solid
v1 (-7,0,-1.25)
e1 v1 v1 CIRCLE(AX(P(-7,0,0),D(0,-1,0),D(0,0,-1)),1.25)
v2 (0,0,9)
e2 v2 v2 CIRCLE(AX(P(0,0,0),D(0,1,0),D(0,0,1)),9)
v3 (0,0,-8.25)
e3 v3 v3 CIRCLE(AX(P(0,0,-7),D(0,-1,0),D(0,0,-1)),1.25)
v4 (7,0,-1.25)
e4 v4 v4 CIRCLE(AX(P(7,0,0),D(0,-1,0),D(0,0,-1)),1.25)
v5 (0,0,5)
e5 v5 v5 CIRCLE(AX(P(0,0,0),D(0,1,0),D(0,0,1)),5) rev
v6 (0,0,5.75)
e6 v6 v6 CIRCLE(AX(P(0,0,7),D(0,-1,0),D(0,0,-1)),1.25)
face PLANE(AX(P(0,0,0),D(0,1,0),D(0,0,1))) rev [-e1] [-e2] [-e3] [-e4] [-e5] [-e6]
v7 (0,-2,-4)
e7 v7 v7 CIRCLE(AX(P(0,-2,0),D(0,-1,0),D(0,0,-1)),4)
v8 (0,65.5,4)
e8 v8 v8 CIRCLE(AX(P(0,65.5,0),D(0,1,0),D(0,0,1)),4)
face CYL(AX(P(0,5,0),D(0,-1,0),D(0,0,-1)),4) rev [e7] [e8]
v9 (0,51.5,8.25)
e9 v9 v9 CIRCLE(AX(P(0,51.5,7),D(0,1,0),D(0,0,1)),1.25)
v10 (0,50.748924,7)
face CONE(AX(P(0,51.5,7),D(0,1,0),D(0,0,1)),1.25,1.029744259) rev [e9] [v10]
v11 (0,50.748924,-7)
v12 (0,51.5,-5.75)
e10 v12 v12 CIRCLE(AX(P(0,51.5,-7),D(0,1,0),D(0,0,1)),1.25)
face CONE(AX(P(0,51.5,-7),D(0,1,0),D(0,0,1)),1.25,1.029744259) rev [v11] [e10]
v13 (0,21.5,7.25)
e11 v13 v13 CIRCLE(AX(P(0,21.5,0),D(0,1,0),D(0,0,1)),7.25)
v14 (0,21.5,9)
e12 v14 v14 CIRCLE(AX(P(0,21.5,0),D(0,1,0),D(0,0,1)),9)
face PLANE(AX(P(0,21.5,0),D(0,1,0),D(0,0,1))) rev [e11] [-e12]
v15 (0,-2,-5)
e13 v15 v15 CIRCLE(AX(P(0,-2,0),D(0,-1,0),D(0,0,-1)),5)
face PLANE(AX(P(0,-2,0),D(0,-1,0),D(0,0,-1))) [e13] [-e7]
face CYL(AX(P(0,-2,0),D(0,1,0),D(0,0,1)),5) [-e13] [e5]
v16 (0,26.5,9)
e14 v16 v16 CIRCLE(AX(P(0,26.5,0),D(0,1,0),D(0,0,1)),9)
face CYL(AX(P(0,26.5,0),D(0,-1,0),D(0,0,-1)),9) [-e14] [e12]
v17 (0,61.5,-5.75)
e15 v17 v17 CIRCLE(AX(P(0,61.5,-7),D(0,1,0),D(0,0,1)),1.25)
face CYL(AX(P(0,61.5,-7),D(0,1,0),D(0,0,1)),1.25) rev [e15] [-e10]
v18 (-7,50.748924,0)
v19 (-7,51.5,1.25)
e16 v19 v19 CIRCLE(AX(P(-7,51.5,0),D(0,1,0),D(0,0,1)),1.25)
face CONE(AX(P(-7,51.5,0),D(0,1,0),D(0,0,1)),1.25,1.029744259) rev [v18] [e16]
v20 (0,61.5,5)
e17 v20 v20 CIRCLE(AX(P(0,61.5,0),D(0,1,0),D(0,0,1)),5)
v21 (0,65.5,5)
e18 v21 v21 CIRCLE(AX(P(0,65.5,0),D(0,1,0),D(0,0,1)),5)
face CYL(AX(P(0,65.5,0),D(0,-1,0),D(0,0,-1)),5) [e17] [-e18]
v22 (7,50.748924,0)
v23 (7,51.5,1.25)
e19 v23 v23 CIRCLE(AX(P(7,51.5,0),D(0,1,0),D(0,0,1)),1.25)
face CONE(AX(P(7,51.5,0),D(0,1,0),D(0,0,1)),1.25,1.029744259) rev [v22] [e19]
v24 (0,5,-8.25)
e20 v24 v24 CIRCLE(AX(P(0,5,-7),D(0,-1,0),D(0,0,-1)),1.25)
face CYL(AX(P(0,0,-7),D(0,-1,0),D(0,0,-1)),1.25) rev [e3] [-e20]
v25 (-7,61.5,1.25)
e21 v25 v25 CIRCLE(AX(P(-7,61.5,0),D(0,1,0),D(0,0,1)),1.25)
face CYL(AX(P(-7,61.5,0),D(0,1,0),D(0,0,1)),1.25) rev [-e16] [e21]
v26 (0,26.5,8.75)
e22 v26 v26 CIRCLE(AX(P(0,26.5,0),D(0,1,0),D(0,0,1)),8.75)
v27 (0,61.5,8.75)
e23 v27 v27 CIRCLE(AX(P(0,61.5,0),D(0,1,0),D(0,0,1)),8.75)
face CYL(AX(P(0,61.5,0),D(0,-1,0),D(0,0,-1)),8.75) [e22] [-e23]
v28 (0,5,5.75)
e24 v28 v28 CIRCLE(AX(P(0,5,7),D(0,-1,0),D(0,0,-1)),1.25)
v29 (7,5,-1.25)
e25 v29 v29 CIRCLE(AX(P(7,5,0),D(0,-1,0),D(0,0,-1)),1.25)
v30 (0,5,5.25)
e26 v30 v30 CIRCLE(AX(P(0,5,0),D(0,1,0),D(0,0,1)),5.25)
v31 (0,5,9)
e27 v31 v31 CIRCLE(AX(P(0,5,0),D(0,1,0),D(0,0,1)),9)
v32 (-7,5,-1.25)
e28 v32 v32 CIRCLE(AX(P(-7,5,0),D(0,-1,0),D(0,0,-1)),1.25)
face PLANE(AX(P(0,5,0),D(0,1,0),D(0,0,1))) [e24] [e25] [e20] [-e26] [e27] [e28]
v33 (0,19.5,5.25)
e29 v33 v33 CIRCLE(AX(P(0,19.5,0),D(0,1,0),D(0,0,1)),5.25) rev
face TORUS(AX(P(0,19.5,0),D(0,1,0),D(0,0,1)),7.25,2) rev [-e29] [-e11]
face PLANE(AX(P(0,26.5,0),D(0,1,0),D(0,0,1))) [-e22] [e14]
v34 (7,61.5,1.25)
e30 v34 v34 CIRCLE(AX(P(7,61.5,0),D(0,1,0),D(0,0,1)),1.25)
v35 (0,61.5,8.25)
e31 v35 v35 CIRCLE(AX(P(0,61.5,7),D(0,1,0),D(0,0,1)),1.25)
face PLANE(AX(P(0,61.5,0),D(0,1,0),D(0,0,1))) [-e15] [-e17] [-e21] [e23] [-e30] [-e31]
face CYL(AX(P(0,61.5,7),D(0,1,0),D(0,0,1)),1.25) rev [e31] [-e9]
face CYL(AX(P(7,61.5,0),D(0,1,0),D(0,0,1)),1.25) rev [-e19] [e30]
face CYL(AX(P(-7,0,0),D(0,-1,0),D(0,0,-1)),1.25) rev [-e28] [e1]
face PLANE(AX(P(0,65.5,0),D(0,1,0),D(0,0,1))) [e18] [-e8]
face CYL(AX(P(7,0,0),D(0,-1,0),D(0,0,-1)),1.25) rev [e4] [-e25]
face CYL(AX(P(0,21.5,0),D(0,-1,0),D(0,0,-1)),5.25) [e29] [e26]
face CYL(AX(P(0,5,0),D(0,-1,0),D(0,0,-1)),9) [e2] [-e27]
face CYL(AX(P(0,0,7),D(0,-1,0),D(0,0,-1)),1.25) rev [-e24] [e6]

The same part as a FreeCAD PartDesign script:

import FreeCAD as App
import Part
import Sketcher

V = App.Vector


def edges_at(feature, points):
    """Names of the edges that pass closest to the given points."""
    edges = feature.Shape.Edges
    near = lambda p: min(range(len(edges)), key=lambda i: edges[i].distToShape(Part.Vertex(*p))[0])
    return sorted({f"Edge{near(p) + 1}" for p in points})

doc = App.newDocument("Part")
body = doc.addObject("PartDesign::Body", "Body")

sketch1 = body.newObject("Sketcher::SketchObject", "Sketch")
sketch1.AttachmentSupport = (doc.getObject("XZ_Plane"), [""])
sketch1.MapMode = "FlatFace"
sketch1.addGeometry([
    Part.Circle(V(0, 0, 0), V(0, 0, 1), 9),
    Part.Circle(V(0, 0, 0), V(0, 0, 1), 4),
], False)
sketch1.addConstraint([
    Sketcher.Constraint("Coincident", 0, 3, -1, 1),
    Sketcher.Constraint("Coincident", 1, 3, -1, 1),
    Sketcher.Constraint("Diameter", 0, 18.0),
    Sketcher.Constraint("Diameter", 1, 8.0),
])
pad1 = body.newObject("PartDesign::Pad", "Pad")
pad1.Profile = sketch1
pad1.Length = 5
pad1.Reversed = True

sketch2 = body.newObject("Sketcher::SketchObject", "Sketch001")
sketch2.AttachmentSupport = (doc.getObject("XZ_Plane"), [""])
sketch2.MapMode = "FlatFace"
sketch2.addGeometry([
    Part.Circle(V(-7, 0, 0), V(0, 0, 1), 1.2),
    Part.Circle(V(0, 7, 0), V(0, 0, 1), 1.2),
    Part.Circle(V(7, 0, 0), V(0, 0, 1), 1.2),
    Part.Circle(V(0, -7, 0), V(0, 0, 1), 1.2),
], False)
sketch2.addConstraint([
    Sketcher.Constraint("Equal", 0, 1),
    Sketcher.Constraint("Equal", 1, 2),
    Sketcher.Constraint("Equal", 2, 3),
    Sketcher.Constraint("Symmetric", 0, 3, 2, 3, -1, 1),
    Sketcher.Constraint("Symmetric", 1, 3, 3, 3, -1, 1),
    Sketcher.Constraint("PointOnObject", 0, 3, -1),
    Sketcher.Constraint("PointOnObject", 1, 3, -2),
    Sketcher.Constraint("Diameter", 0, 2.5),
    Sketcher.Constraint("DistanceX", 0, 3, -1, 1, 7.0),
    Sketcher.Constraint("DistanceY", -1, 1, 1, 3, 7.0),
])
doc.recompute()
hole = body.newObject("PartDesign::Hole", "Hole")
hole.Profile = sketch2
hole.ThreadType = "None"
hole.Diameter = 2.5
hole.DepthType = "ThroughAll"

sketch3 = body.newObject("Sketcher::SketchObject", "Sketch002")
sketch3.AttachmentSupport = (doc.getObject("XZ_Plane"), [""])
sketch3.MapMode = "FlatFace"
sketch3.AttachmentOffset = App.Placement(V(0, 0, -5), App.Rotation())
sketch3.addGeometry(Part.Circle(V(0, 0, 0), V(0, 0, 1), 5), False)
sketch3.addConstraint([
    Sketcher.Constraint("Coincident", 0, 3, -1, 1),
    Sketcher.Constraint("Diameter", 0, 10.5),
])
pad2 = body.newObject("PartDesign::Pad", "Pad001")
pad2.Profile = sketch3
pad2.Length = 16.5
pad2.Reversed = True

sketch4 = body.newObject("Sketcher::SketchObject", "Sketch003")
sketch4.AttachmentSupport = (doc.getObject("XZ_Plane"), [""])
sketch4.MapMode = "FlatFace"
sketch4.AttachmentOffset = App.Placement(V(0, 0, -21.5), App.Rotation())
sketch4.addGeometry(Part.Circle(V(0, 0, 0), V(0, 0, 1), 9), False)
sketch4.addConstraint([
    Sketcher.Constraint("Coincident", 0, 3, -1, 1),
    Sketcher.Constraint("Diameter", 0, 18.0),
])
pad3 = body.newObject("PartDesign::Pad", "Pad002")
pad3.Profile = sketch4
pad3.Length = 5
pad3.Reversed = True

sketch5 = body.newObject("Sketcher::SketchObject", "Sketch004")
sketch5.AttachmentSupport = (doc.getObject("XZ_Plane"), [""])
sketch5.MapMode = "FlatFace"
sketch5.AttachmentOffset = App.Placement(V(0, 0, -26.5), App.Rotation())
sketch5.addGeometry(Part.Circle(V(0, 0, 0), V(0, 0, 1), 9), False)
sketch5.addConstraint([
    Sketcher.Constraint("Coincident", 0, 3, -1, 1),
    Sketcher.Constraint("Diameter", 0, 17.5),
])
pad4 = body.newObject("PartDesign::Pad", "Pad003")
pad4.Profile = sketch5
pad4.Length = 35
pad4.Reversed = True

sketch6 = body.newObject("Sketcher::SketchObject", "Sketch005")
sketch6.AttachmentSupport = (doc.getObject("XZ_Plane"), [""])
sketch6.MapMode = "FlatFace"
sketch6.AttachmentOffset = App.Placement(V(0, 0, -61.5), App.Rotation())
sketch6.addGeometry([
    Part.Circle(V(0, -7, 0), V(0, 0, 1), 1.2),
    Part.Circle(V(-7, 0, 0), V(0, 0, 1), 1.2),
    Part.Circle(V(7, 0, 0), V(0, 0, 1), 1.2),
    Part.Circle(V(0, 7, 0), V(0, 0, 1), 1.2),
], False)
sketch6.addConstraint([
    Sketcher.Constraint("Equal", 0, 1),
    Sketcher.Constraint("Equal", 1, 2),
    Sketcher.Constraint("Equal", 2, 3),
    Sketcher.Constraint("Symmetric", 1, 3, 2, 3, -1, 1),
    Sketcher.Constraint("Symmetric", 0, 3, 3, 3, -1, 1),
    Sketcher.Constraint("PointOnObject", 0, 3, -2),
    Sketcher.Constraint("PointOnObject", 1, 3, -1),
    Sketcher.Constraint("Diameter", 0, 2.5),
    Sketcher.Constraint("DistanceY", 0, 3, -1, 1, 7.0),
    Sketcher.Constraint("DistanceX", 1, 3, -1, 1, 7.0),
])
doc.recompute()
hole2 = body.newObject("PartDesign::Hole", "Hole001")
hole2.Profile = sketch6
hole2.ThreadType = "None"
hole2.Diameter = 2.5
hole2.DepthType = "Dimension"
hole2.Depth = 10
hole2.DrillPoint = "Angled"
hole2.DrillPointAngle = 118
hole2.Reversed = True

sketch7 = body.newObject("Sketcher::SketchObject", "Sketch006")
sketch7.AttachmentSupport = (doc.getObject("XZ_Plane"), [""])
sketch7.MapMode = "FlatFace"
sketch7.AttachmentOffset = App.Placement(V(0, 0, -61.5), App.Rotation())
sketch7.addGeometry(Part.Circle(V(0, 0, 0), V(0, 0, 1), 5), False)
sketch7.addConstraint([
    Sketcher.Constraint("Coincident", 0, 3, -1, 1),
    Sketcher.Constraint("Diameter", 0, 10.0),
])
pad5 = body.newObject("PartDesign::Pad", "Pad004")
pad5.Profile = sketch7
pad5.Length = 4
pad5.Reversed = True

sketch8 = body.newObject("Sketcher::SketchObject", "Sketch007")
sketch8.AttachmentSupport = (doc.getObject("XZ_Plane"), [""])
sketch8.MapMode = "FlatFace"
sketch8.AttachmentOffset = App.Placement(V(0, 0, -5), App.Rotation())
sketch8.addGeometry(Part.Circle(V(0, 0, 0), V(0, 0, 1), 4), False)
sketch8.addConstraint([
    Sketcher.Constraint("Coincident", 0, 3, -1, 1),
    Sketcher.Constraint("Diameter", 0, 8.0),
])
pocket1 = body.newObject("PartDesign::Pocket", "Pocket")
pocket1.Profile = sketch8
pocket1.Length = 165

sketch9 = body.newObject("Sketcher::SketchObject", "Sketch008")
sketch9.AttachmentSupport = (doc.getObject("XZ_Plane"), [""])
sketch9.MapMode = "FlatFace"
sketch9.AttachmentOffset = App.Placement(V(0, 0, 2), App.Rotation())
sketch9.addGeometry([
    Part.Circle(V(0, 0, 0), V(0, 0, 1), 5),
    Part.Circle(V(0, 0, 0), V(0, 0, 1), 4),
], False)
sketch9.addConstraint([
    Sketcher.Constraint("Coincident", 0, 3, -1, 1),
    Sketcher.Constraint("Coincident", 1, 3, -1, 1),
    Sketcher.Constraint("Diameter", 0, 10.0),
    Sketcher.Constraint("Diameter", 1, 8.0),
])
pad6 = body.newObject("PartDesign::Pad", "Pad005")
pad6.Profile = sketch9
pad6.Length = 2
pad6.Reversed = True
doc.recompute()

fillet = body.newObject("PartDesign::Fillet", "Fillet")
fillet.Base = (pad6, edges_at(pad6, [(0, 21.5, -5.25)]))
fillet.Radius = 2

doc.recompute()
